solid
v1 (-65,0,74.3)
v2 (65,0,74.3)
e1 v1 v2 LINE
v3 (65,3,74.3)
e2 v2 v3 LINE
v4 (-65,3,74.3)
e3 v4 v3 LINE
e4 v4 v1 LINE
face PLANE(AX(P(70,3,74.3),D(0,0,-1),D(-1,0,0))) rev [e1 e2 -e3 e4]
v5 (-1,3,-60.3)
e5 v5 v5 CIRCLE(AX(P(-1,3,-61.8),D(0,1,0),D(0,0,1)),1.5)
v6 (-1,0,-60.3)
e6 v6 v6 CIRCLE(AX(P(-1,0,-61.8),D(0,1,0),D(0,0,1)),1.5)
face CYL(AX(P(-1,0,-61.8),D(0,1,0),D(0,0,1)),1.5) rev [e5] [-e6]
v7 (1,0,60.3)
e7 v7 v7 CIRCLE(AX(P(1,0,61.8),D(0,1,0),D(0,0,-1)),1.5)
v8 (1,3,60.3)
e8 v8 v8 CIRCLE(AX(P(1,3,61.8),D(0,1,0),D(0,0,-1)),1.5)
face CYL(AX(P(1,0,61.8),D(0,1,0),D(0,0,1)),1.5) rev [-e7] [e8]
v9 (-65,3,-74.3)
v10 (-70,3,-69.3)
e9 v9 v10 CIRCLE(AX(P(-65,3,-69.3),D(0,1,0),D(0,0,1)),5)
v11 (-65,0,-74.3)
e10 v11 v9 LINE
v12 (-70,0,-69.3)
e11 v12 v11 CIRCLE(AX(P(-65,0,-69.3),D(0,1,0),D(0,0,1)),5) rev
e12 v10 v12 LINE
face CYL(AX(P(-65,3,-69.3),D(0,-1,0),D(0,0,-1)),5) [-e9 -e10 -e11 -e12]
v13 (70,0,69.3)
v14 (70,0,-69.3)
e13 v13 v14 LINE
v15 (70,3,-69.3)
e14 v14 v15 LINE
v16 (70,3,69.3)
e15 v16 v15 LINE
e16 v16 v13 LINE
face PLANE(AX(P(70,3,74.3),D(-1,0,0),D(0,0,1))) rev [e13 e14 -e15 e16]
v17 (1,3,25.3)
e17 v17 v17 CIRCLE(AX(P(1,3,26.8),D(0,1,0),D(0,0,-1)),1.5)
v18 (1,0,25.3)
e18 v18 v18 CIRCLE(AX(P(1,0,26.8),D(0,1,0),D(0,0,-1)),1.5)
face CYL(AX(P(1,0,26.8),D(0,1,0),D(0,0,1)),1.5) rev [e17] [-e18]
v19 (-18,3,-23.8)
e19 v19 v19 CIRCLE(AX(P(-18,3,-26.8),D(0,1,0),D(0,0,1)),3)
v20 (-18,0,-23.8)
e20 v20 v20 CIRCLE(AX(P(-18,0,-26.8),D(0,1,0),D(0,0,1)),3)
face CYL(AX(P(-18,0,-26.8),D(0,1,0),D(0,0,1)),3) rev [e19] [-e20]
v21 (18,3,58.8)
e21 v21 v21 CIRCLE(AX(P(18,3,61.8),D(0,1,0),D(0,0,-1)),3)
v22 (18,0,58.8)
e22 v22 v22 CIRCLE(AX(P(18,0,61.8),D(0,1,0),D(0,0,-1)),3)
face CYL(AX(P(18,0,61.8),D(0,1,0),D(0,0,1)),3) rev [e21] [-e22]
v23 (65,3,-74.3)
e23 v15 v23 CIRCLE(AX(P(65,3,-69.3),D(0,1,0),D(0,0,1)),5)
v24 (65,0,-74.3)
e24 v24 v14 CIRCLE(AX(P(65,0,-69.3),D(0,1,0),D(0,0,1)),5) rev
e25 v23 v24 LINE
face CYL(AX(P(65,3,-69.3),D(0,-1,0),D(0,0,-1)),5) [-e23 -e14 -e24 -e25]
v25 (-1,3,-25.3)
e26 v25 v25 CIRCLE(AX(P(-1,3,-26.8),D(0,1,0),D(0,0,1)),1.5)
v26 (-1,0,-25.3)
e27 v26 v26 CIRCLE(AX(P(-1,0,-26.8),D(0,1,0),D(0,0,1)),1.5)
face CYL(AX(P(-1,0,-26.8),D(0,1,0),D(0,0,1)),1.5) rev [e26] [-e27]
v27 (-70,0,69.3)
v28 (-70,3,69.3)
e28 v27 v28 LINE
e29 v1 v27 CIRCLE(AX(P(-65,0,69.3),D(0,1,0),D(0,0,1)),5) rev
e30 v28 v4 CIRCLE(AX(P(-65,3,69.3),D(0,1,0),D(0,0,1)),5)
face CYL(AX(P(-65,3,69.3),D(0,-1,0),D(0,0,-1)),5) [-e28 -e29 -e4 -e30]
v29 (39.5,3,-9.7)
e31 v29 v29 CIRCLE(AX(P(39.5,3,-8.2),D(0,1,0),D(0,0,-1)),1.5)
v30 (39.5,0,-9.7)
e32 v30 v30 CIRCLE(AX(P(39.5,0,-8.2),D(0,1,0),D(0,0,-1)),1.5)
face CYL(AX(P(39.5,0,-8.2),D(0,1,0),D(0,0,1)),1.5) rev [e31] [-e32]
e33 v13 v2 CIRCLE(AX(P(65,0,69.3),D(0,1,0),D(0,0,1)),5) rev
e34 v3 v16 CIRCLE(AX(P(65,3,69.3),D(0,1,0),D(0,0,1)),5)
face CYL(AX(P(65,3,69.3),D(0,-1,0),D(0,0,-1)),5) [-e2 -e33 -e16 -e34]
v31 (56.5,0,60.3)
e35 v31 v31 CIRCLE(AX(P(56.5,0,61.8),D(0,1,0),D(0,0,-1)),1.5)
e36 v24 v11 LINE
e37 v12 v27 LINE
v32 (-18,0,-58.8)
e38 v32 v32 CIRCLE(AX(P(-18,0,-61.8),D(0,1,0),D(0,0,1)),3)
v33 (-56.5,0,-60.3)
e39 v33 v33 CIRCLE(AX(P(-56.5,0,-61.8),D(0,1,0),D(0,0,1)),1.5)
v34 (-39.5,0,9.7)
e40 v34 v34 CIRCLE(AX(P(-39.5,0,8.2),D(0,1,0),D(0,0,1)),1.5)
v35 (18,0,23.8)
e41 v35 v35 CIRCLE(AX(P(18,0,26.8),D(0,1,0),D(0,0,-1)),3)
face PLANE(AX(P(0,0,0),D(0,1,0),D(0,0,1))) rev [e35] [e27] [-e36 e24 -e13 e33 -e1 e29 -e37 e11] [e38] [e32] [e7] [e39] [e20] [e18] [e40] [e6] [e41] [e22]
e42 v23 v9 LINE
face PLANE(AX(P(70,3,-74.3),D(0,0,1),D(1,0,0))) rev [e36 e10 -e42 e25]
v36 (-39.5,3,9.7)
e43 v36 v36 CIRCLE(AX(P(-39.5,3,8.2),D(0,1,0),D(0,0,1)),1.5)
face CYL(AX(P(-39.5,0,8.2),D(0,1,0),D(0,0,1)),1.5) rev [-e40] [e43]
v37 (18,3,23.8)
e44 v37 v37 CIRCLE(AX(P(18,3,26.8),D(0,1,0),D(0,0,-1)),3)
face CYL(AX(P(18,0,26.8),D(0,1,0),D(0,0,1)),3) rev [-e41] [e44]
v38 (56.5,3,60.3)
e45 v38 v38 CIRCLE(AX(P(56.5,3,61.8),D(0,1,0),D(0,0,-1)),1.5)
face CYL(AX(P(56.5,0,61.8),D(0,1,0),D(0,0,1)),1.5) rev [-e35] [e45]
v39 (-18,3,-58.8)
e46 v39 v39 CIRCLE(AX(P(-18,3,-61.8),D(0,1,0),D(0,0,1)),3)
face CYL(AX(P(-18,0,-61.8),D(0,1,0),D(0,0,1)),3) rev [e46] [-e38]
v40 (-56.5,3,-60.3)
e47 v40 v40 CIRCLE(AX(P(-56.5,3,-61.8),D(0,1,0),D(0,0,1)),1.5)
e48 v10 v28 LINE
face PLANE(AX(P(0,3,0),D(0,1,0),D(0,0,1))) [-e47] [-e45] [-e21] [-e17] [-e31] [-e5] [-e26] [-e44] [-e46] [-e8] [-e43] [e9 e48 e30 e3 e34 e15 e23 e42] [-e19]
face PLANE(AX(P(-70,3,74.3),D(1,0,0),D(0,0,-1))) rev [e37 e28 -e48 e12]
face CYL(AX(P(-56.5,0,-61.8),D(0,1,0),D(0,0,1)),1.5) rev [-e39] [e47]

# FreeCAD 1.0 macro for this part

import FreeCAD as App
import Part
import Sketcher


def edges_at(feature, points):
    """Names of the edges that pass closest to the given points."""
    edges = feature.Shape.Edges
    near = lambda p: min(range(len(edges)), key=lambda i: edges[i].distToShape(Part.Vertex(*p))[0])
    return sorted({f"Edge{near(p) + 1}" for p in points})


def add_polygon(sketch, points):
    """Adds a closed chain of lines whose ends are joined by coincident constraints."""
    first, n = sketch.GeometryCount, len(points)
    for a, b in zip(points, points[1:] + points[:1]):
        sketch.addGeometry(Part.LineSegment(App.Vector(*a, 0), App.Vector(*b, 0)), False)
    for i in range(n):
        sketch.addConstraint(Sketcher.Constraint("Coincident", first + i, 2, first + (i + 1) % n, 1))

doc = App.newDocument("Part")
body = doc.addObject("PartDesign::Body", "Body")

# Sketch on XZ plane
sketch1 = body.newObject("Sketcher::SketchObject", "Sketch")
sketch1.AttachmentSupport = (doc.getObject("XZ_Plane"), [""])
sketch1.MapMode = "FlatFace"
add_polygon(sketch1, [(-70, -74), (-70, 74), (70, 74), (70, -74)])  # lines 0-3
sketch1.addConstraint([
    Sketcher.Constraint("Vertical", 0),
    Sketcher.Constraint("Horizontal", 1),
    Sketcher.Constraint("Vertical", 2),
    Sketcher.Constraint("Horizontal", 3),
    Sketcher.Constraint("Symmetric", 0, 2, 2, 2, -1, 1),
    Sketcher.Constraint("DistanceX", 1, 1, 1, 2, 140.0),
    Sketcher.Constraint("DistanceY", 0, 1, 0, 2, 148.6),
])
pad1 = body.newObject("PartDesign::Pad", "Pad")
pad1.Profile = sketch1
pad1.Length = 3
pad1.Reversed = True

# Sketch on XZ plane
sketch2 = body.newObject("Sketcher::SketchObject", "Sketch001")
sketch2.AttachmentSupport = (doc.getObject("XZ_Plane"), [""])
sketch2.MapMode = "FlatFace"
sketch2.AttachmentOffset = App.Placement(App.Vector(0, 0, -3), App.Rotation())
sketch2.addGeometry([
    Part.Circle(App.Vector(-18, -26.8, 0), App.Vector(0, 0, 1), 3),  # 0
    Part.Circle(App.Vector(-18, -61.8, 0), App.Vector(0, 0, 1), 3),  # 1
    Part.Circle(App.Vector(-1, -61.8, 0), App.Vector(0, 0, 1), 1.5),  # 2
    Part.Circle(App.Vector(-1, -26.8, 0), App.Vector(0, 0, 1), 1.5),  # 3
    Part.Circle(App.Vector(-56.5, -61.8, 0), App.Vector(0, 0, 1), 1.5),  # 4
    Part.Circle(App.Vector(-39.5, 8.2, 0), App.Vector(0, 0, 1), 1.5),  # 5
], False)
sketch2.addConstraint([
    Sketcher.Constraint("Equal", 0, 1),
    Sketcher.Constraint("Equal", 2, 3),
    Sketcher.Constraint("Equal", 3, 4),
    Sketcher.Constraint("Equal", 4, 5),
    Sketcher.Constraint("Horizontal", 1, 3, 2, 3),
    Sketcher.Constraint("Horizontal", 0, 3, 3, 3),
    Sketcher.Constraint("Horizontal", 2, 3, 4, 3),
    Sketcher.Constraint("Vertical", 0, 3, 1, 3),
    Sketcher.Constraint("Vertical", 2, 3, 3, 3),
    Sketcher.Constraint("Diameter", 0, 6.0),
    Sketcher.Constraint("Diameter", 2, 3.0),
    Sketcher.Constraint("DistanceX", 0, 3, -1, 1, 18.0),
    Sketcher.Constraint("DistanceX", 2, 3, -1, 1, 1.0),
    Sketcher.Constraint("DistanceY", 1, 3, 0, 3, 35.0),
    Sketcher.Constraint("DistanceY", 0, 3, 5, 3, 35.0),
    Sketcher.Constraint("DistanceX", 4, 3, 5, 3, 17.0),
    Sketcher.Constraint("DistanceY", 0, 3, -1, 1, 26.8),
    Sketcher.Constraint("DistanceX", 4, 3, -1, 1, 56.5),
])
pocket1 = body.newObject("PartDesign::Pocket", "Pocket")
pocket1.Profile = sketch2
pocket1.Type = "ThroughAll"
pocket1.Reversed = True
doc.recompute()

fillet = body.newObject("PartDesign::Fillet", "Fillet")
fillet.Base = (pocket1, edges_at(pocket1, [
    (-70, 1.5, -74.3),
    (70, 1.5, -74.3),
    (70, 1.5, 74.3),
    (-70, 1.5, 74.3),
]))
fillet.Radius = 5
doc.recompute()

polarpattern = body.newObject("PartDesign::PolarPattern", "PolarPattern")
polarpattern.Originals = [pocket1]
polarpattern.Axis = (doc.getObject("Y_Axis"), [""])
polarpattern.Angle = 360
polarpattern.Occurrences = 2
body.Tip = polarpattern

doc.recompute()
